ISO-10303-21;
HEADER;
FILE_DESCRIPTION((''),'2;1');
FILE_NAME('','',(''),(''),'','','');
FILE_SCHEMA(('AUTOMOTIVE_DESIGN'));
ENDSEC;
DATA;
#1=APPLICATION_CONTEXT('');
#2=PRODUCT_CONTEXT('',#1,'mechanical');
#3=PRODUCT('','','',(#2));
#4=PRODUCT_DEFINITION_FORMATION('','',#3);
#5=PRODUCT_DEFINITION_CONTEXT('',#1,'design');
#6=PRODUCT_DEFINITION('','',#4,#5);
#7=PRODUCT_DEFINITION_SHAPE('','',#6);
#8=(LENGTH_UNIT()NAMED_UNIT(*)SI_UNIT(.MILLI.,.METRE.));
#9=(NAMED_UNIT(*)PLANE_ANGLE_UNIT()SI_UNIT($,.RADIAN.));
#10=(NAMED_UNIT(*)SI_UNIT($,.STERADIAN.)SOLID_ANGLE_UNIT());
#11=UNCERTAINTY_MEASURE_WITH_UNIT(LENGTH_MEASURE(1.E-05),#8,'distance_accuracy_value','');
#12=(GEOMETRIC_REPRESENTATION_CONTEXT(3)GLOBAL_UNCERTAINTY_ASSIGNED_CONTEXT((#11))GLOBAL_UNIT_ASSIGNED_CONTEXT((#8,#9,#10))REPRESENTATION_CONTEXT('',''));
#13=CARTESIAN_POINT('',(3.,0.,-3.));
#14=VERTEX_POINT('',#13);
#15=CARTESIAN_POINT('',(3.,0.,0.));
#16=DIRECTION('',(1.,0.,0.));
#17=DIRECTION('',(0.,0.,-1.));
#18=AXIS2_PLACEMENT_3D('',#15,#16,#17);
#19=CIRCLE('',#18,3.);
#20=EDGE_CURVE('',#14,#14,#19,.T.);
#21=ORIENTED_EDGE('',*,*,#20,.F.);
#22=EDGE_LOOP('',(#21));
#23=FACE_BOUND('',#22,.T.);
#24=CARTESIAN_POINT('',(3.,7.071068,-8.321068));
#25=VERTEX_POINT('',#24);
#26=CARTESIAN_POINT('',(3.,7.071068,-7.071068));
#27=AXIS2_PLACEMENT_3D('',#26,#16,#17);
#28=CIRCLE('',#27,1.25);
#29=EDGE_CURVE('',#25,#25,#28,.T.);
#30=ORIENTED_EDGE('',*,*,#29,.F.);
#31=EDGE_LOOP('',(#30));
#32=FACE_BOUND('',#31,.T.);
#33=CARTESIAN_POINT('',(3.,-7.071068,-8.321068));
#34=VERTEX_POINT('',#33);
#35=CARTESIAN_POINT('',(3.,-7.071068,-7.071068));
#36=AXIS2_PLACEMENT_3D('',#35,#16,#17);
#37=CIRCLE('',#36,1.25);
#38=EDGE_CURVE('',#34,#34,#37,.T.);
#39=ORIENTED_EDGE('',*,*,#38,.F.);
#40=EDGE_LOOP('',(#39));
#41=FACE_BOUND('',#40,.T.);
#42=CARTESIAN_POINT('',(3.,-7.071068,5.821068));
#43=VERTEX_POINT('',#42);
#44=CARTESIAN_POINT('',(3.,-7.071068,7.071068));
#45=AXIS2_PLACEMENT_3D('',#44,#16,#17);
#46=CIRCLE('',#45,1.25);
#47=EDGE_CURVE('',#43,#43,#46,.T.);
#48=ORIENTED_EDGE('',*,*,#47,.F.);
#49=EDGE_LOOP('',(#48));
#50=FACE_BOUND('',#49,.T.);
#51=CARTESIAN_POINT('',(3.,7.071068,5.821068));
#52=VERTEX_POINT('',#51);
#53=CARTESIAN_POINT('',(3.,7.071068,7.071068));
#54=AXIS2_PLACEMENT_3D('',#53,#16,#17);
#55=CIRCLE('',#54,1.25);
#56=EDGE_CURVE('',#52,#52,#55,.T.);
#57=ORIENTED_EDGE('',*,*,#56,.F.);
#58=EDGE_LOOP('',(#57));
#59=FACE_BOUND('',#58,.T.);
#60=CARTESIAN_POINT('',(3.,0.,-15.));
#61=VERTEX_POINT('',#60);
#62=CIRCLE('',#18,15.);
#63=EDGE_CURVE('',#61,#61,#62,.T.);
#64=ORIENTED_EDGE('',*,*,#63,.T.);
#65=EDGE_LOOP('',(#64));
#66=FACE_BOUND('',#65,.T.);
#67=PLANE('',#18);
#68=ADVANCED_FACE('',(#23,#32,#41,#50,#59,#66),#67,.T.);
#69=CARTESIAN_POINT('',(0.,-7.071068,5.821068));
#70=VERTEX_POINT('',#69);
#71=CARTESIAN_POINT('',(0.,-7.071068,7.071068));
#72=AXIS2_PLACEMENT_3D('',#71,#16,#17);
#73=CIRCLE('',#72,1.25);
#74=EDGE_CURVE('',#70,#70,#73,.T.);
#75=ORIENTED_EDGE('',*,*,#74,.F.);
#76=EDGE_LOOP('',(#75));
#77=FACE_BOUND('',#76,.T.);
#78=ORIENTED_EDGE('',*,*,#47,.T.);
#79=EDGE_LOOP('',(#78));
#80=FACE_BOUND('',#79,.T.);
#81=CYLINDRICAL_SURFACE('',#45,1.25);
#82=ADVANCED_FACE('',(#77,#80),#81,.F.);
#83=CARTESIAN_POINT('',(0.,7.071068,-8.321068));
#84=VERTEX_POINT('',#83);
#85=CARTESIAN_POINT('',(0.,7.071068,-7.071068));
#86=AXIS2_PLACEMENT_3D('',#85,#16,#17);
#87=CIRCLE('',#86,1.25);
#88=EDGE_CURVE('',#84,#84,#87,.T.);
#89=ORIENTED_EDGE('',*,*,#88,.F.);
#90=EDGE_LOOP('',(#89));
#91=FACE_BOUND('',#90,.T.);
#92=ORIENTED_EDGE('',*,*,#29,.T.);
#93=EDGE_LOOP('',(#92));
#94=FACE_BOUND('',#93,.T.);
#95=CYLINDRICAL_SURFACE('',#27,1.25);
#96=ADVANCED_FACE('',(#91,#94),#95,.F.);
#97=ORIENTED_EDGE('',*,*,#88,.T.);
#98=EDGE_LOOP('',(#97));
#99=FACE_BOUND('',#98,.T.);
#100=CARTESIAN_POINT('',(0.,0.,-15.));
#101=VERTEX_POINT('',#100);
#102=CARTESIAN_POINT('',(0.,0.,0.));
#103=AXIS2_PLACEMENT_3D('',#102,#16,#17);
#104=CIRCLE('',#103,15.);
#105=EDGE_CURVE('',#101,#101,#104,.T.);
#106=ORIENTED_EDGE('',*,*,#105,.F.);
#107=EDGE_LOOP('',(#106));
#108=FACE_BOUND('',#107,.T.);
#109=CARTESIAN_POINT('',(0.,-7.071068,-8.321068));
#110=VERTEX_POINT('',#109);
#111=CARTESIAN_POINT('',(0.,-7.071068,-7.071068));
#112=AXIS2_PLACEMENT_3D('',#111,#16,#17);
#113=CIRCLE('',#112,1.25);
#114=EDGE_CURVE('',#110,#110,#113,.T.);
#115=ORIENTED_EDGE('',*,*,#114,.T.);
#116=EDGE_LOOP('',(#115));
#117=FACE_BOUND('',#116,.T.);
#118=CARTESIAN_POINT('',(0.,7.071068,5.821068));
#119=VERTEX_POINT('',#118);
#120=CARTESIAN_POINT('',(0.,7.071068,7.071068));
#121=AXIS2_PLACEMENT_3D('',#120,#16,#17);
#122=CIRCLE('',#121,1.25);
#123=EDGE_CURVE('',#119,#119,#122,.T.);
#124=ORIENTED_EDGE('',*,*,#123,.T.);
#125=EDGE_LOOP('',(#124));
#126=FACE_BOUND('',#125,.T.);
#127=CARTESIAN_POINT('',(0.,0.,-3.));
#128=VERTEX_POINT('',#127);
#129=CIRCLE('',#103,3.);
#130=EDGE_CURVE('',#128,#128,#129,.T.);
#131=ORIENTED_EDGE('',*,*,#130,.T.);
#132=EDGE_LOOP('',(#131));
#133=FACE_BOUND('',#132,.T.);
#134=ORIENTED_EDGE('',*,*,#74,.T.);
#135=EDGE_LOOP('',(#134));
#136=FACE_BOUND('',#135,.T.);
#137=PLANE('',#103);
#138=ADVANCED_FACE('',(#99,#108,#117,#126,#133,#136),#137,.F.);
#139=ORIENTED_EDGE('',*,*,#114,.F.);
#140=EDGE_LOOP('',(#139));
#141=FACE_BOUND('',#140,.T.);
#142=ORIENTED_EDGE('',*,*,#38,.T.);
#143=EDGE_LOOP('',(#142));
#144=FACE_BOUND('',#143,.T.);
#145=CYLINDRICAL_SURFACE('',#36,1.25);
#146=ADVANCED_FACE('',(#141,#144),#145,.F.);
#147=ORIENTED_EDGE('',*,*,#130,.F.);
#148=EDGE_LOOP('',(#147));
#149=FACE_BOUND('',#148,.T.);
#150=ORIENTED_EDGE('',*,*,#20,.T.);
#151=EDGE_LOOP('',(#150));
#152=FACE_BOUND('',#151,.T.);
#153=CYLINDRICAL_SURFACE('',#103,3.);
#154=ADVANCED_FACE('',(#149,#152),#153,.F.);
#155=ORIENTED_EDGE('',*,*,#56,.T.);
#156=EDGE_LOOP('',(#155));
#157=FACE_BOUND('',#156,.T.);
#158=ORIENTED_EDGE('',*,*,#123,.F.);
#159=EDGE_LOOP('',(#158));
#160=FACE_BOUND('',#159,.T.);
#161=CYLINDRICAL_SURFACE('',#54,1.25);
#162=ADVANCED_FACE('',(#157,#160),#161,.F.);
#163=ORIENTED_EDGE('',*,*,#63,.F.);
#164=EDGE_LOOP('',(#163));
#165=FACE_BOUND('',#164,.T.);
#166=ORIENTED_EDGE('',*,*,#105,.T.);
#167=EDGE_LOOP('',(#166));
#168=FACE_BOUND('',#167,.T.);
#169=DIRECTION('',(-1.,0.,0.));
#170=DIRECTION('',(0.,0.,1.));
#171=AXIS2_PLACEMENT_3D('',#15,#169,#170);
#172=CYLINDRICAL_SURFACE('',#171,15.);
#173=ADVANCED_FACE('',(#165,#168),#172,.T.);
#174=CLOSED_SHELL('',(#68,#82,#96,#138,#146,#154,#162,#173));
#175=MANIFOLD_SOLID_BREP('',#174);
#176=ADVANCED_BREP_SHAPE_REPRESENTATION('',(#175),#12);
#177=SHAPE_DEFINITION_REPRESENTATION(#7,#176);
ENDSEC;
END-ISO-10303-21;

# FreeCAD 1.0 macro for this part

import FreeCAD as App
import Part
import Sketcher
from FreeCAD import Vector

doc = App.newDocument("Part")
params = doc.addObject("Spreadsheet::Sheet", "Params")
for row, (alias, value) in enumerate([
    ("sketch1_diameter", "30 mm"),
    ("pad1_length", "3 mm"),
    ("sketch2_diameter", "2.5 mm"),
    ("hole_diameter", "2.5 mm"),
    ("sketch3_diameter", "6 mm"),
], start=1):
    params.set(f"A{row}", alias)
    params.set(f"B{row}", "=" + value)
    params.setAlias(f"B{row}", alias)

body = doc.addObject("PartDesign::Body", "Body")

# Sketch on YZ plane
sketch1 = body.newObject("Sketcher::SketchObject", "Sketch")
sketch1.AttachmentSupport = (doc.getObject("YZ_Plane"), [""])
sketch1.MapMode = "FlatFace"
sketch1.addGeometry(Part.Circle(Vector(0, 0, 0), Vector(0, 0, 1), 15), False)
sketch1.addConstraint([
    Sketcher.Constraint("Coincident", 0, 3, -1, 1),
    Sketcher.Constraint("Diameter", 0, 30.0),
])
sketch1.setExpression("Constraints[1]", "Params.sketch1_diameter")
pad1 = body.newObject("PartDesign::Pad", "Pad")
pad1.Profile = sketch1
pad1.setExpression("Length", "Params.pad1_length")

# Sketch on YZ plane
sketch2 = body.newObject("Sketcher::SketchObject", "Sketch001")
sketch2.AttachmentSupport = (doc.getObject("YZ_Plane"), [""])
sketch2.MapMode = "FlatFace"
sketch2.AttachmentOffset = App.Placement(Vector(0, 0, 3), App.Rotation())
sketch2.addGeometry([
    Part.Circle(Vector(7.1, 7.1, 0), Vector(0, 0, 1), 1.2),
    Part.Circle(Vector(-7.1, -7.1, 0), Vector(0, 0, 1), 1.2),
    Part.Circle(Vector(7.1, -7.1, 0), Vector(0, 0, 1), 1.2),
    Part.Circle(Vector(-7.1, 7.1, 0), Vector(0, 0, 1), 1.2),
], False)
sketch2.addConstraint([
    Sketcher.Constraint("Equal", 0, 1),
    Sketcher.Constraint("Equal", 1, 2),
    Sketcher.Constraint("Equal", 2, 3),
    Sketcher.Constraint("Symmetric", 0, 3, 1, 3, -1, 1),
    Sketcher.Constraint("Symmetric", 2, 3, 3, 3, -1, 1),
    Sketcher.Constraint("Symmetric", 1, 3, 2, 3, -2),
    Sketcher.Constraint("Diameter", 0, 2.5),
    Sketcher.Constraint("DistanceX", -1, 1, 0, 3, 7.071068),
    Sketcher.Constraint("DistanceY", -1, 1, 0, 3, 7.071068),
])
sketch2.setExpression("Constraints[6]", "Params.sketch2_diameter")
doc.recompute()
hole = body.newObject("PartDesign::Hole", "Hole")
hole.Profile = sketch2
hole.ThreadType = "None"
hole.setExpression("Diameter", "Params.hole_diameter")
hole.DepthType = "ThroughAll"

# Sketch on YZ plane
sketch3 = body.newObject("Sketcher::SketchObject", "Sketch002")
sketch3.AttachmentSupport = (doc.getObject("YZ_Plane"), [""])
sketch3.MapMode = "FlatFace"
sketch3.AttachmentOffset = App.Placement(Vector(0, 0, 3), App.Rotation())
sketch3.addGeometry(Part.Circle(Vector(0, 0, 0), Vector(0, 0, 1), 3), False)
sketch3.addConstraint([
    Sketcher.Constraint("Coincident", 0, 3, -1, 1),
    Sketcher.Constraint("Diameter", 0, 6.0),
])
sketch3.setExpression("Constraints[1]", "Params.sketch3_diameter")
pocket1 = body.newObject("PartDesign::Pocket", "Pocket")
pocket1.Profile = sketch3
pocket1.Type = "ThroughAll"

doc.recompute()
